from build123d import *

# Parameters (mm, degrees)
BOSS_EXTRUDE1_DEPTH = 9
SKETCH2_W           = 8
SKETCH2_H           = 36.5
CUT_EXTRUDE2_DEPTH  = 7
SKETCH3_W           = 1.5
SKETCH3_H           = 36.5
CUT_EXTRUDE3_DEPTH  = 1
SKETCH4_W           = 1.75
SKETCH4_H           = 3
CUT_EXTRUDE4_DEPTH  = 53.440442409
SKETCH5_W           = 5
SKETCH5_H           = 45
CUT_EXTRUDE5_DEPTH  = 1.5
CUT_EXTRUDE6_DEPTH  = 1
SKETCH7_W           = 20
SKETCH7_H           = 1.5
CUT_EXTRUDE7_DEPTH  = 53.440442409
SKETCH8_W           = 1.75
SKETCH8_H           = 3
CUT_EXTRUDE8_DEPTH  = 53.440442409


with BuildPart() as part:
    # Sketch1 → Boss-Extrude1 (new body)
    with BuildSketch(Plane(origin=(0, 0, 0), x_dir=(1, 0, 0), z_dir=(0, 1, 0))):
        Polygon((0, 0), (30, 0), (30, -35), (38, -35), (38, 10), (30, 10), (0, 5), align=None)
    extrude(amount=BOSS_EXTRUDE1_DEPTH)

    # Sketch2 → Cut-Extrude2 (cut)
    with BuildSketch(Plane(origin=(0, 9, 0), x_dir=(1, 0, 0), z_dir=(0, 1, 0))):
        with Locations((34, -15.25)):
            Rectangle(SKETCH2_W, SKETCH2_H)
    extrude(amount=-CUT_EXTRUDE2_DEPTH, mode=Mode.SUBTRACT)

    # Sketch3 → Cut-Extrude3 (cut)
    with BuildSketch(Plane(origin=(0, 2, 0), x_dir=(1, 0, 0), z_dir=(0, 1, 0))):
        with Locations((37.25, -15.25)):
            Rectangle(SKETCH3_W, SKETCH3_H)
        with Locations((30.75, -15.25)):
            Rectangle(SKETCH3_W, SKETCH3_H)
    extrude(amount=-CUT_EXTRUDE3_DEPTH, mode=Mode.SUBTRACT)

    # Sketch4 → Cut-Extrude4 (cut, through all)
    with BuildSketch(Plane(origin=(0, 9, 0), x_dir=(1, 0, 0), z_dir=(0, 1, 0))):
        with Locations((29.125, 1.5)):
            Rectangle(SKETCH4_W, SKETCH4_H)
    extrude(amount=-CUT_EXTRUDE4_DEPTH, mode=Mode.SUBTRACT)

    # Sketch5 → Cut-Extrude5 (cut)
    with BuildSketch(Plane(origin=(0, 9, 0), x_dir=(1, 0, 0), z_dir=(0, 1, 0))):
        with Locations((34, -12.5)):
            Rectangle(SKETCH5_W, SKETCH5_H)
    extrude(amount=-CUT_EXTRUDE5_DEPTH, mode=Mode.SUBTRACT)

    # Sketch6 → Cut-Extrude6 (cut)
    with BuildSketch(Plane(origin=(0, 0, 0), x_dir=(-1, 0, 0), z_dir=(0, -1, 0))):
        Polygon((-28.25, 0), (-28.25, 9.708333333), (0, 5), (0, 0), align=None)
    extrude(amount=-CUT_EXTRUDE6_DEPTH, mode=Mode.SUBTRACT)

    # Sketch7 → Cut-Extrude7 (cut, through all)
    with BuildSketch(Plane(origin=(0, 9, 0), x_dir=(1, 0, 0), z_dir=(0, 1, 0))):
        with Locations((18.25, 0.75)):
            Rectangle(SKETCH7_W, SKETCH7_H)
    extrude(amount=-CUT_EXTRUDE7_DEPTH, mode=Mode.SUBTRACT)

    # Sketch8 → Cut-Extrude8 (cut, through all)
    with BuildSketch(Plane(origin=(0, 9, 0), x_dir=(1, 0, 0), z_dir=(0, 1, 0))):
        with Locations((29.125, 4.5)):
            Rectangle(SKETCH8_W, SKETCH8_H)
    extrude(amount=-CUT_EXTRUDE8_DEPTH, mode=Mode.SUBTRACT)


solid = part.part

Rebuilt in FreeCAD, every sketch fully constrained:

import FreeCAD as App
import Part
import Sketcher
from FreeCAD import Vector


def add_polygon(sketch, points):
    """Adds a closed chain of lines whose ends are joined by coincident constraints."""
    first, n = sketch.GeometryCount, len(points)
    for a, b in zip(points, points[1:] + points[:1]):
        sketch.addGeometry(Part.LineSegment(App.Vector(*a, 0), App.Vector(*b, 0)), False)
    for i in range(n):
        sketch.addConstraint(Sketcher.Constraint("Coincident", first + i, 2, first + (i + 1) % n, 1))

doc = App.newDocument("Part")
body = doc.addObject("PartDesign::Body", "Body")

# Sketch on XZ plane
sketch1 = body.newObject("Sketcher::SketchObject", "Sketch")
sketch1.AttachmentSupport = (doc.getObject("XZ_Plane"), [""])
sketch1.MapMode = "FlatFace"
add_polygon(sketch1, [(0, 0), (30, 0), (30, 35), (38, 35), (38, -10), (30, -10), (0, -5)])  # lines 0-6
sketch1.addConstraint([
    Sketcher.Constraint("Horizontal", 0),
    Sketcher.Constraint("Vertical", 1),
    Sketcher.Constraint("Horizontal", 2),
    Sketcher.Constraint("Vertical", 3),
    Sketcher.Constraint("Horizontal", 4),
    Sketcher.Constraint("Vertical", 6),
    Sketcher.Constraint("Coincident", 6, 2, -1, 1),
    Sketcher.Constraint("Vertical", 1, 2, 4, 2),
    Sketcher.Constraint("DistanceX", 0, 1, 0, 2, 30.0),
    Sketcher.Constraint("DistanceX", 2, 1, 2, 2, 8.0),
    Sketcher.Constraint("DistanceY", 1, 1, 1, 2, 35.0),
    Sketcher.Constraint("DistanceY", 3, 2, 3, 1, 45.0),
    Sketcher.Constraint("DistanceY", 6, 1, 6, 2, 5.0),
])
pad1 = body.newObject("PartDesign::Pad", "Pad")
pad1.Profile = sketch1
pad1.Length = 9
pad1.Reversed = True

# Sketch on XZ plane
sketch2 = body.newObject("Sketcher::SketchObject", "Sketch001")
sketch2.AttachmentSupport = (doc.getObject("XZ_Plane"), [""])
sketch2.MapMode = "FlatFace"
sketch2.AttachmentOffset = App.Placement(Vector(0, 0, -9), App.Rotation())
add_polygon(sketch2, [(30, -3), (30, 34), (38, 34), (38, -3)])  # lines 0-3
sketch2.addConstraint([
    Sketcher.Constraint("Vertical", 0),
    Sketcher.Constraint("Horizontal", 1),
    Sketcher.Constraint("Vertical", 2),
    Sketcher.Constraint("Horizontal", 3),
    Sketcher.Constraint("DistanceX", 1, 1, 1, 2, 8.0),
    Sketcher.Constraint("DistanceY", 0, 1, 0, 2, 36.5),
    Sketcher.Constraint("DistanceX", -1, 1, 0, 2, 30.0),
    Sketcher.Constraint("DistanceY", 2, 2, -1, 1, 3.0),
])
pocket1 = body.newObject("PartDesign::Pocket", "Pocket")
pocket1.Profile = sketch2
pocket1.Length = 7
pocket1.Reversed = True

# Sketch on XZ plane
sketch3 = body.newObject("Sketcher::SketchObject", "Sketch002")
sketch3.AttachmentSupport = (doc.getObject("XZ_Plane"), [""])
sketch3.MapMode = "FlatFace"
sketch3.AttachmentOffset = App.Placement(Vector(0, 0, -2), App.Rotation())
add_polygon(sketch3, [(36.5, -3), (36.5, 33.5), (38, 33.5), (38, -3)])  # lines 0-3
add_polygon(sketch3, [(30, -3), (30, 33.5), (31.5, 33.5), (31.5, -3)])  # lines 4-7
sketch3.addConstraint([
    Sketcher.Constraint("Vertical", 0),
    Sketcher.Constraint("Horizontal", 1),
    Sketcher.Constraint("Vertical", 2),
    Sketcher.Constraint("Horizontal", 3),
    Sketcher.Constraint("Vertical", 4),
    Sketcher.Constraint("Horizontal", 5),
    Sketcher.Constraint("Vertical", 6),
    Sketcher.Constraint("Horizontal", 7),
    Sketcher.Constraint("Horizontal", 1, 2, 4, 2),
    Sketcher.Constraint("Horizontal", 3, 2, 6, 2),
    Sketcher.Constraint("Equal", 3, 5),
    Sketcher.Constraint("DistanceX", 1, 1, 1, 2, 1.5),
    Sketcher.Constraint("DistanceY", 0, 1, 0, 2, 36.5),
    Sketcher.Constraint("DistanceX", -1, 1, 1, 2, 38.0),
    Sketcher.Constraint("DistanceY", 2, 2, -1, 1, 3.0),
    Sketcher.Constraint("DistanceX", -1, 1, 4, 2, 30.0),
])
pocket2 = body.newObject("PartDesign::Pocket", "Pocket001")
pocket2.Profile = sketch3
pocket2.Length = 1
pocket2.Reversed = True

# Sketch on XZ plane
sketch4 = body.newObject("Sketcher::SketchObject", "Sketch003")
sketch4.AttachmentSupport = (doc.getObject("XZ_Plane"), [""])
sketch4.MapMode = "FlatFace"
sketch4.AttachmentOffset = App.Placement(Vector(0, 0, -9), App.Rotation())
add_polygon(sketch4, [(28.2, -3), (28.2, 0), (30, 0), (30, -3)])  # lines 0-3
sketch4.addConstraint([
    Sketcher.Constraint("Vertical", 0),
    Sketcher.Constraint("Horizontal", 1),
    Sketcher.Constraint("Vertical", 2),
    Sketcher.Constraint("Horizontal", 3),
    Sketcher.Constraint("PointOnObject", 0, 2, -1),
    Sketcher.Constraint("DistanceY", 0, 1, 0, 2, 3.0),
    Sketcher.Constraint("DistanceX", -1, 1, 1, 2, 30.0),
    Sketcher.Constraint("DistanceX", 1, 1, 1, 2, 1.75),
])
pocket3 = body.newObject("PartDesign::Pocket", "Pocket002")
pocket3.Profile = sketch4
pocket3.Type = "ThroughAll"
pocket3.Reversed = True

# Sketch on XZ plane
sketch5 = body.newObject("Sketcher::SketchObject", "Sketch004")
sketch5.AttachmentSupport = (doc.getObject("XZ_Plane"), [""])
sketch5.MapMode = "FlatFace"
sketch5.AttachmentOffset = App.Placement(Vector(0, 0, -9), App.Rotation())
add_polygon(sketch5, [(32, -10), (32, 35), (36, 35), (36, -10)])  # lines 0-3
sketch5.addConstraint([
    Sketcher.Constraint("Vertical", 0),
    Sketcher.Constraint("Horizontal", 1),
    Sketcher.Constraint("Vertical", 2),
    Sketcher.Constraint("Horizontal", 3),
    Sketcher.Constraint("DistanceX", 1, 1, 1, 2, 5.0),
    Sketcher.Constraint("DistanceY", 0, 1, 0, 2, 45.0),
    Sketcher.Constraint("DistanceY", -1, 1, 0, 2, 35.0),
    Sketcher.Constraint("DistanceX", -1, 1, 0, 2, 31.5),
])
pocket4 = body.newObject("PartDesign::Pocket", "Pocket003")
pocket4.Profile = sketch5
pocket4.Length = 1.5
pocket4.Reversed = True

# Sketch on XZ plane
sketch6 = body.newObject("Sketcher::SketchObject", "Sketch005")
sketch6.AttachmentSupport = (doc.getObject("XZ_Plane"), [""])
sketch6.MapMode = "FlatFace"
add_polygon(sketch6, [(28, -10), (28, 0), (0, 0), (0, -5)])  # lines 0-3
sketch6.addConstraint([
    Sketcher.Constraint("Vertical", 0),
    Sketcher.Constraint("Horizontal", 1),
    Sketcher.Constraint("Vertical", 2),
    Sketcher.Constraint("Coincident", 1, 2, -1, 1),
    Sketcher.Constraint("DistanceY", 2, 2, 2, 1, 5.0),
    Sketcher.Constraint("DistanceX", 1, 2, 1, 1, 28.25),
    Sketcher.Constraint("DistanceY", 0, 1, 0, 2, 9.708333),
])
pocket5 = body.newObject("PartDesign::Pocket", "Pocket004")
pocket5.Profile = sketch6
pocket5.Length = 1

# Sketch on XZ plane
sketch7 = body.newObject("Sketcher::SketchObject", "Sketch006")
sketch7.AttachmentSupport = (doc.getObject("XZ_Plane"), [""])
sketch7.MapMode = "FlatFace"
sketch7.AttachmentOffset = App.Placement(Vector(0, 0, -9), App.Rotation())
add_polygon(sketch7, [(8.2, -1.5), (8.2, 0), (28.2, 0), (28.2, -1.5)])  # lines 0-3
sketch7.addConstraint([
    Sketcher.Constraint("Vertical", 0),
    Sketcher.Constraint("Horizontal", 1),
    Sketcher.Constraint("Vertical", 2),
    Sketcher.Constraint("Horizontal", 3),
    Sketcher.Constraint("PointOnObject", 0, 2, -1),
    Sketcher.Constraint("DistanceX", 1, 1, 1, 2, 20.0),
    Sketcher.Constraint("DistanceY", 0, 1, 0, 2, 1.5),
    Sketcher.Constraint("DistanceX", -1, 1, 0, 2, 8.25),
])
pocket6 = body.newObject("PartDesign::Pocket", "Pocket005")
pocket6.Profile = sketch7
pocket6.Type = "ThroughAll"
pocket6.Reversed = True

# Sketch on XZ plane
sketch8 = body.newObject("Sketcher::SketchObject", "Sketch007")
sketch8.AttachmentSupport = (doc.getObject("XZ_Plane"), [""])
sketch8.MapMode = "FlatFace"
sketch8.AttachmentOffset = App.Placement(Vector(0, 0, -9), App.Rotation())
add_polygon(sketch8, [(28.2, -6), (28.2, -3), (30, -3), (30, -6)])  # lines 0-3
sketch8.addConstraint([
    Sketcher.Constraint("Vertical", 0),
    Sketcher.Constraint("Horizontal", 1),
    Sketcher.Constraint("Vertical", 2),
    Sketcher.Constraint("Horizontal", 3),
    Sketcher.Constraint("DistanceY", 0, 1, 0, 2, 3.0),
    Sketcher.Constraint("DistanceY", 0, 2, -1, 1, 3.0),
    Sketcher.Constraint("DistanceX", -1, 1, 1, 2, 30.0),
    Sketcher.Constraint("DistanceX", 1, 1, 1, 2, 1.75),
])
pocket7 = body.newObject("PartDesign::Pocket", "Pocket006")
pocket7.Profile = sketch8
pocket7.Type = "ThroughAll"
pocket7.Reversed = True

doc.recompute()
